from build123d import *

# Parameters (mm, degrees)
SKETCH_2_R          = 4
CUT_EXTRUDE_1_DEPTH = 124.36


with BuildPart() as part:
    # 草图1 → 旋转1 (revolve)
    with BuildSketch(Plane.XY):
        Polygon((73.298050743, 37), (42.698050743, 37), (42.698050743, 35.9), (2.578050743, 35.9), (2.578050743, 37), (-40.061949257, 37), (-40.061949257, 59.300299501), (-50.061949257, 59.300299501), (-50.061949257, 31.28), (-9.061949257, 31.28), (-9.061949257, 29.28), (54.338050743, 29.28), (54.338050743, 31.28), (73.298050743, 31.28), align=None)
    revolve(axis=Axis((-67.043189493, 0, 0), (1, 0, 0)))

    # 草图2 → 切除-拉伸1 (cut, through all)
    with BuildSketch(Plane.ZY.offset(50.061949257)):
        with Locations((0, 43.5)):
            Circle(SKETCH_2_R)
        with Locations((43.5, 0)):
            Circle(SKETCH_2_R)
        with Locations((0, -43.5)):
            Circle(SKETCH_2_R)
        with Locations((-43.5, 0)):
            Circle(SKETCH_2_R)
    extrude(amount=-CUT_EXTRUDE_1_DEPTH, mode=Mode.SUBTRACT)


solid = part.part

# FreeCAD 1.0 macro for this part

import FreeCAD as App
import Part
import Sketcher
from FreeCAD import Vector
Q = App.Units.Quantity


def add_polygon(sketch, points):
    """Adds a closed chain of lines whose ends are joined by coincident constraints."""
    first, n = sketch.GeometryCount, len(points)
    for a, b in zip(points, points[1:] + points[:1]):
        sketch.addGeometry(Part.LineSegment(App.Vector(*a, 0), App.Vector(*b, 0)), False)
    for i in range(n):
        sketch.addConstraint(Sketcher.Constraint("Coincident", first + i, 2, first + (i + 1) % n, 1))

doc = App.newDocument("Part")
params = doc.addObject("Spreadsheet::Sheet", "Params")
for row, (alias, value) in enumerate([
    ("sketch1_width", "10 mm"),
    ("sketch1_width2", "41 mm"),
    ("sketch1_height", "2 mm"),
    ("sketch1_width3", "30.6 mm"),
    ("sketch1_width4", "63.4 mm"),
    ("revolution_angle", "360 deg"),
    ("sketch2_diameter", "8 mm"),
], start=1):
    params.set(f"A{row}", alias)
    params.set(f"B{row}", "=" + value)
    params.setAlias(f"B{row}", alias)

body = doc.addObject("PartDesign::Body", "Body")

sketch1 = doc.addObject("Sketcher::SketchObject", "Sketch")
body.addObject(sketch1)
sketch1.AttachmentSupport = (doc.XY_Plane, [""])
sketch1.MapMode = "FlatFace"
add_polygon(sketch1, [(73.3, 37), (42.7, 37), (42.7, 35.9), (2.6, 35.9), (2.6, 37), (-40.1, 37), (-40.1, 59.3), (-50.1, 59.3), (-50.1, 31.3), (-9.1, 31.3), (-9.1, 29.3), (54.3, 29.3), (54.3, 31.3), (73.3, 31.3)])
sketch1.addConstraint(Sketcher.Constraint("Horizontal", 0))
sketch1.addConstraint(Sketcher.Constraint("Vertical", 1))
sketch1.addConstraint(Sketcher.Constraint("Horizontal", 2))
sketch1.addConstraint(Sketcher.Constraint("Vertical", 3))
sketch1.addConstraint(Sketcher.Constraint("Horizontal", 4))
sketch1.addConstraint(Sketcher.Constraint("Vertical", 5))
sketch1.addConstraint(Sketcher.Constraint("Horizontal", 6))
sketch1.addConstraint(Sketcher.Constraint("Vertical", 7))
sketch1.addConstraint(Sketcher.Constraint("Horizontal", 8))
sketch1.addConstraint(Sketcher.Constraint("Vertical", 9))
sketch1.addConstraint(Sketcher.Constraint("Horizontal", 10))
sketch1.addConstraint(Sketcher.Constraint("Vertical", 11))
sketch1.addConstraint(Sketcher.Constraint("Horizontal", 12))
sketch1.addConstraint(Sketcher.Constraint("Vertical", 13))
sketch1.addConstraint(Sketcher.Constraint("Horizontal", 0, 2, 3, 2))
sketch1.addConstraint(Sketcher.Constraint("Horizontal", 8, 2, 11, 2))
sketch1.addConstraint(Sketcher.Constraint("DistanceX", 6, 2, 6, 1, Q("10 mm")))
sketch1.addConstraint(Sketcher.Constraint("DistanceX", 8, 1, 8, 2, Q("41 mm")))
sketch1.addConstraint(Sketcher.Constraint("DistanceY", 9, 2, 9, 1, Q("2 mm")))
sketch1.addConstraint(Sketcher.Constraint("DistanceX", 0, 2, 0, 1, Q("30.6 mm")))
sketch1.addConstraint(Sketcher.Constraint("DistanceX", 10, 1, 10, 2, Q("63.4 mm")))
sketch1.addConstraint(Sketcher.Constraint("DistanceY", 1, 2, 1, 1, Q("1.1 mm")))
sketch1.addConstraint(Sketcher.Constraint("DistanceY", -1, 1, 0, 2, Q("37 mm")))
sketch1.addConstraint(Sketcher.Constraint("DistanceX", 2, 2, 2, 1, Q("40.12 mm")))
sketch1.addConstraint(Sketcher.Constraint("DistanceX", 4, 2, 4, 1, Q("42.64 mm")))
sketch1.addConstraint(Sketcher.Constraint("DistanceY", 13, 1, 13, 2, Q("5.72 mm")))
sketch1.addConstraint(Sketcher.Constraint("DistanceY", 5, 1, 5, 2, Q("22.3003 mm")))
sketch1.addConstraint(Sketcher.Constraint("DistanceX", -1, 1, 0, 2, Q("42.698051 mm")))
sketch1.setExpression("Constraints[30]", "Params.sketch1_width")
sketch1.setExpression("Constraints[31]", "Params.sketch1_width2")
sketch1.setExpression("Constraints[32]", "Params.sketch1_height")
sketch1.setExpression("Constraints[33]", "Params.sketch1_width3")
sketch1.setExpression("Constraints[34]", "Params.sketch1_width4")
revolution = doc.addObject("PartDesign::Revolution", "Revolution")
body.addObject(revolution)
revolution.Profile = sketch1
revolution.ReferenceAxis = (sketch1, ["H_Axis"])
revolution.setExpression("Angle", "Params.revolution_angle")

sketch2 = doc.addObject("Sketcher::SketchObject", "Sketch001")
body.addObject(sketch2)
sketch2.AttachmentSupport = (doc.YZ_Plane, [""])
sketch2.MapMode = "FlatFace"
sketch2.AttachmentOffset = App.Placement(Vector(0, 0, -50.061949), App.Rotation())
sketch2.addGeometry(Part.Circle(Vector(43.5, 0, 0), Vector(0, 0, 1), 4), False)
sketch2.addGeometry(Part.Circle(Vector(0, 43.5, 0), Vector(0, 0, 1), 4), False)
sketch2.addGeometry(Part.Circle(Vector(-43.5, 0, 0), Vector(0, 0, 1), 4), False)
sketch2.addGeometry(Part.Circle(Vector(0, -43.5, 0), Vector(0, 0, 1), 4), False)
sketch2.addConstraint(Sketcher.Constraint("Equal", 0, 1))
sketch2.addConstraint(Sketcher.Constraint("Equal", 1, 2))
sketch2.addConstraint(Sketcher.Constraint("Equal", 2, 3))
sketch2.addConstraint(Sketcher.Constraint("Symmetric", 0, 3, 2, 3, -1, 1))
sketch2.addConstraint(Sketcher.Constraint("Symmetric", 1, 3, 3, 3, -1, 1))
sketch2.addConstraint(Sketcher.Constraint("PointOnObject", 0, 3, -1))
sketch2.addConstraint(Sketcher.Constraint("PointOnObject", 1, 3, -2))
sketch2.addConstraint(Sketcher.Constraint("Diameter", 0, Q("8 mm")))
sketch2.addConstraint(Sketcher.Constraint("DistanceX", 2, 3, 0, 3, Q("87 mm")))
sketch2.addConstraint(Sketcher.Constraint("DistanceY", 3, 3, 1, 3, Q("87 mm")))
sketch2.setExpression("Constraints[7]", "Params.sketch2_diameter")
pocket1 = doc.addObject("PartDesign::Pocket", "Pocket")
body.addObject(pocket1)
pocket1.Profile = sketch2
pocket1.Type = "ThroughAll"
pocket1.Reversed = True

doc.recompute()
